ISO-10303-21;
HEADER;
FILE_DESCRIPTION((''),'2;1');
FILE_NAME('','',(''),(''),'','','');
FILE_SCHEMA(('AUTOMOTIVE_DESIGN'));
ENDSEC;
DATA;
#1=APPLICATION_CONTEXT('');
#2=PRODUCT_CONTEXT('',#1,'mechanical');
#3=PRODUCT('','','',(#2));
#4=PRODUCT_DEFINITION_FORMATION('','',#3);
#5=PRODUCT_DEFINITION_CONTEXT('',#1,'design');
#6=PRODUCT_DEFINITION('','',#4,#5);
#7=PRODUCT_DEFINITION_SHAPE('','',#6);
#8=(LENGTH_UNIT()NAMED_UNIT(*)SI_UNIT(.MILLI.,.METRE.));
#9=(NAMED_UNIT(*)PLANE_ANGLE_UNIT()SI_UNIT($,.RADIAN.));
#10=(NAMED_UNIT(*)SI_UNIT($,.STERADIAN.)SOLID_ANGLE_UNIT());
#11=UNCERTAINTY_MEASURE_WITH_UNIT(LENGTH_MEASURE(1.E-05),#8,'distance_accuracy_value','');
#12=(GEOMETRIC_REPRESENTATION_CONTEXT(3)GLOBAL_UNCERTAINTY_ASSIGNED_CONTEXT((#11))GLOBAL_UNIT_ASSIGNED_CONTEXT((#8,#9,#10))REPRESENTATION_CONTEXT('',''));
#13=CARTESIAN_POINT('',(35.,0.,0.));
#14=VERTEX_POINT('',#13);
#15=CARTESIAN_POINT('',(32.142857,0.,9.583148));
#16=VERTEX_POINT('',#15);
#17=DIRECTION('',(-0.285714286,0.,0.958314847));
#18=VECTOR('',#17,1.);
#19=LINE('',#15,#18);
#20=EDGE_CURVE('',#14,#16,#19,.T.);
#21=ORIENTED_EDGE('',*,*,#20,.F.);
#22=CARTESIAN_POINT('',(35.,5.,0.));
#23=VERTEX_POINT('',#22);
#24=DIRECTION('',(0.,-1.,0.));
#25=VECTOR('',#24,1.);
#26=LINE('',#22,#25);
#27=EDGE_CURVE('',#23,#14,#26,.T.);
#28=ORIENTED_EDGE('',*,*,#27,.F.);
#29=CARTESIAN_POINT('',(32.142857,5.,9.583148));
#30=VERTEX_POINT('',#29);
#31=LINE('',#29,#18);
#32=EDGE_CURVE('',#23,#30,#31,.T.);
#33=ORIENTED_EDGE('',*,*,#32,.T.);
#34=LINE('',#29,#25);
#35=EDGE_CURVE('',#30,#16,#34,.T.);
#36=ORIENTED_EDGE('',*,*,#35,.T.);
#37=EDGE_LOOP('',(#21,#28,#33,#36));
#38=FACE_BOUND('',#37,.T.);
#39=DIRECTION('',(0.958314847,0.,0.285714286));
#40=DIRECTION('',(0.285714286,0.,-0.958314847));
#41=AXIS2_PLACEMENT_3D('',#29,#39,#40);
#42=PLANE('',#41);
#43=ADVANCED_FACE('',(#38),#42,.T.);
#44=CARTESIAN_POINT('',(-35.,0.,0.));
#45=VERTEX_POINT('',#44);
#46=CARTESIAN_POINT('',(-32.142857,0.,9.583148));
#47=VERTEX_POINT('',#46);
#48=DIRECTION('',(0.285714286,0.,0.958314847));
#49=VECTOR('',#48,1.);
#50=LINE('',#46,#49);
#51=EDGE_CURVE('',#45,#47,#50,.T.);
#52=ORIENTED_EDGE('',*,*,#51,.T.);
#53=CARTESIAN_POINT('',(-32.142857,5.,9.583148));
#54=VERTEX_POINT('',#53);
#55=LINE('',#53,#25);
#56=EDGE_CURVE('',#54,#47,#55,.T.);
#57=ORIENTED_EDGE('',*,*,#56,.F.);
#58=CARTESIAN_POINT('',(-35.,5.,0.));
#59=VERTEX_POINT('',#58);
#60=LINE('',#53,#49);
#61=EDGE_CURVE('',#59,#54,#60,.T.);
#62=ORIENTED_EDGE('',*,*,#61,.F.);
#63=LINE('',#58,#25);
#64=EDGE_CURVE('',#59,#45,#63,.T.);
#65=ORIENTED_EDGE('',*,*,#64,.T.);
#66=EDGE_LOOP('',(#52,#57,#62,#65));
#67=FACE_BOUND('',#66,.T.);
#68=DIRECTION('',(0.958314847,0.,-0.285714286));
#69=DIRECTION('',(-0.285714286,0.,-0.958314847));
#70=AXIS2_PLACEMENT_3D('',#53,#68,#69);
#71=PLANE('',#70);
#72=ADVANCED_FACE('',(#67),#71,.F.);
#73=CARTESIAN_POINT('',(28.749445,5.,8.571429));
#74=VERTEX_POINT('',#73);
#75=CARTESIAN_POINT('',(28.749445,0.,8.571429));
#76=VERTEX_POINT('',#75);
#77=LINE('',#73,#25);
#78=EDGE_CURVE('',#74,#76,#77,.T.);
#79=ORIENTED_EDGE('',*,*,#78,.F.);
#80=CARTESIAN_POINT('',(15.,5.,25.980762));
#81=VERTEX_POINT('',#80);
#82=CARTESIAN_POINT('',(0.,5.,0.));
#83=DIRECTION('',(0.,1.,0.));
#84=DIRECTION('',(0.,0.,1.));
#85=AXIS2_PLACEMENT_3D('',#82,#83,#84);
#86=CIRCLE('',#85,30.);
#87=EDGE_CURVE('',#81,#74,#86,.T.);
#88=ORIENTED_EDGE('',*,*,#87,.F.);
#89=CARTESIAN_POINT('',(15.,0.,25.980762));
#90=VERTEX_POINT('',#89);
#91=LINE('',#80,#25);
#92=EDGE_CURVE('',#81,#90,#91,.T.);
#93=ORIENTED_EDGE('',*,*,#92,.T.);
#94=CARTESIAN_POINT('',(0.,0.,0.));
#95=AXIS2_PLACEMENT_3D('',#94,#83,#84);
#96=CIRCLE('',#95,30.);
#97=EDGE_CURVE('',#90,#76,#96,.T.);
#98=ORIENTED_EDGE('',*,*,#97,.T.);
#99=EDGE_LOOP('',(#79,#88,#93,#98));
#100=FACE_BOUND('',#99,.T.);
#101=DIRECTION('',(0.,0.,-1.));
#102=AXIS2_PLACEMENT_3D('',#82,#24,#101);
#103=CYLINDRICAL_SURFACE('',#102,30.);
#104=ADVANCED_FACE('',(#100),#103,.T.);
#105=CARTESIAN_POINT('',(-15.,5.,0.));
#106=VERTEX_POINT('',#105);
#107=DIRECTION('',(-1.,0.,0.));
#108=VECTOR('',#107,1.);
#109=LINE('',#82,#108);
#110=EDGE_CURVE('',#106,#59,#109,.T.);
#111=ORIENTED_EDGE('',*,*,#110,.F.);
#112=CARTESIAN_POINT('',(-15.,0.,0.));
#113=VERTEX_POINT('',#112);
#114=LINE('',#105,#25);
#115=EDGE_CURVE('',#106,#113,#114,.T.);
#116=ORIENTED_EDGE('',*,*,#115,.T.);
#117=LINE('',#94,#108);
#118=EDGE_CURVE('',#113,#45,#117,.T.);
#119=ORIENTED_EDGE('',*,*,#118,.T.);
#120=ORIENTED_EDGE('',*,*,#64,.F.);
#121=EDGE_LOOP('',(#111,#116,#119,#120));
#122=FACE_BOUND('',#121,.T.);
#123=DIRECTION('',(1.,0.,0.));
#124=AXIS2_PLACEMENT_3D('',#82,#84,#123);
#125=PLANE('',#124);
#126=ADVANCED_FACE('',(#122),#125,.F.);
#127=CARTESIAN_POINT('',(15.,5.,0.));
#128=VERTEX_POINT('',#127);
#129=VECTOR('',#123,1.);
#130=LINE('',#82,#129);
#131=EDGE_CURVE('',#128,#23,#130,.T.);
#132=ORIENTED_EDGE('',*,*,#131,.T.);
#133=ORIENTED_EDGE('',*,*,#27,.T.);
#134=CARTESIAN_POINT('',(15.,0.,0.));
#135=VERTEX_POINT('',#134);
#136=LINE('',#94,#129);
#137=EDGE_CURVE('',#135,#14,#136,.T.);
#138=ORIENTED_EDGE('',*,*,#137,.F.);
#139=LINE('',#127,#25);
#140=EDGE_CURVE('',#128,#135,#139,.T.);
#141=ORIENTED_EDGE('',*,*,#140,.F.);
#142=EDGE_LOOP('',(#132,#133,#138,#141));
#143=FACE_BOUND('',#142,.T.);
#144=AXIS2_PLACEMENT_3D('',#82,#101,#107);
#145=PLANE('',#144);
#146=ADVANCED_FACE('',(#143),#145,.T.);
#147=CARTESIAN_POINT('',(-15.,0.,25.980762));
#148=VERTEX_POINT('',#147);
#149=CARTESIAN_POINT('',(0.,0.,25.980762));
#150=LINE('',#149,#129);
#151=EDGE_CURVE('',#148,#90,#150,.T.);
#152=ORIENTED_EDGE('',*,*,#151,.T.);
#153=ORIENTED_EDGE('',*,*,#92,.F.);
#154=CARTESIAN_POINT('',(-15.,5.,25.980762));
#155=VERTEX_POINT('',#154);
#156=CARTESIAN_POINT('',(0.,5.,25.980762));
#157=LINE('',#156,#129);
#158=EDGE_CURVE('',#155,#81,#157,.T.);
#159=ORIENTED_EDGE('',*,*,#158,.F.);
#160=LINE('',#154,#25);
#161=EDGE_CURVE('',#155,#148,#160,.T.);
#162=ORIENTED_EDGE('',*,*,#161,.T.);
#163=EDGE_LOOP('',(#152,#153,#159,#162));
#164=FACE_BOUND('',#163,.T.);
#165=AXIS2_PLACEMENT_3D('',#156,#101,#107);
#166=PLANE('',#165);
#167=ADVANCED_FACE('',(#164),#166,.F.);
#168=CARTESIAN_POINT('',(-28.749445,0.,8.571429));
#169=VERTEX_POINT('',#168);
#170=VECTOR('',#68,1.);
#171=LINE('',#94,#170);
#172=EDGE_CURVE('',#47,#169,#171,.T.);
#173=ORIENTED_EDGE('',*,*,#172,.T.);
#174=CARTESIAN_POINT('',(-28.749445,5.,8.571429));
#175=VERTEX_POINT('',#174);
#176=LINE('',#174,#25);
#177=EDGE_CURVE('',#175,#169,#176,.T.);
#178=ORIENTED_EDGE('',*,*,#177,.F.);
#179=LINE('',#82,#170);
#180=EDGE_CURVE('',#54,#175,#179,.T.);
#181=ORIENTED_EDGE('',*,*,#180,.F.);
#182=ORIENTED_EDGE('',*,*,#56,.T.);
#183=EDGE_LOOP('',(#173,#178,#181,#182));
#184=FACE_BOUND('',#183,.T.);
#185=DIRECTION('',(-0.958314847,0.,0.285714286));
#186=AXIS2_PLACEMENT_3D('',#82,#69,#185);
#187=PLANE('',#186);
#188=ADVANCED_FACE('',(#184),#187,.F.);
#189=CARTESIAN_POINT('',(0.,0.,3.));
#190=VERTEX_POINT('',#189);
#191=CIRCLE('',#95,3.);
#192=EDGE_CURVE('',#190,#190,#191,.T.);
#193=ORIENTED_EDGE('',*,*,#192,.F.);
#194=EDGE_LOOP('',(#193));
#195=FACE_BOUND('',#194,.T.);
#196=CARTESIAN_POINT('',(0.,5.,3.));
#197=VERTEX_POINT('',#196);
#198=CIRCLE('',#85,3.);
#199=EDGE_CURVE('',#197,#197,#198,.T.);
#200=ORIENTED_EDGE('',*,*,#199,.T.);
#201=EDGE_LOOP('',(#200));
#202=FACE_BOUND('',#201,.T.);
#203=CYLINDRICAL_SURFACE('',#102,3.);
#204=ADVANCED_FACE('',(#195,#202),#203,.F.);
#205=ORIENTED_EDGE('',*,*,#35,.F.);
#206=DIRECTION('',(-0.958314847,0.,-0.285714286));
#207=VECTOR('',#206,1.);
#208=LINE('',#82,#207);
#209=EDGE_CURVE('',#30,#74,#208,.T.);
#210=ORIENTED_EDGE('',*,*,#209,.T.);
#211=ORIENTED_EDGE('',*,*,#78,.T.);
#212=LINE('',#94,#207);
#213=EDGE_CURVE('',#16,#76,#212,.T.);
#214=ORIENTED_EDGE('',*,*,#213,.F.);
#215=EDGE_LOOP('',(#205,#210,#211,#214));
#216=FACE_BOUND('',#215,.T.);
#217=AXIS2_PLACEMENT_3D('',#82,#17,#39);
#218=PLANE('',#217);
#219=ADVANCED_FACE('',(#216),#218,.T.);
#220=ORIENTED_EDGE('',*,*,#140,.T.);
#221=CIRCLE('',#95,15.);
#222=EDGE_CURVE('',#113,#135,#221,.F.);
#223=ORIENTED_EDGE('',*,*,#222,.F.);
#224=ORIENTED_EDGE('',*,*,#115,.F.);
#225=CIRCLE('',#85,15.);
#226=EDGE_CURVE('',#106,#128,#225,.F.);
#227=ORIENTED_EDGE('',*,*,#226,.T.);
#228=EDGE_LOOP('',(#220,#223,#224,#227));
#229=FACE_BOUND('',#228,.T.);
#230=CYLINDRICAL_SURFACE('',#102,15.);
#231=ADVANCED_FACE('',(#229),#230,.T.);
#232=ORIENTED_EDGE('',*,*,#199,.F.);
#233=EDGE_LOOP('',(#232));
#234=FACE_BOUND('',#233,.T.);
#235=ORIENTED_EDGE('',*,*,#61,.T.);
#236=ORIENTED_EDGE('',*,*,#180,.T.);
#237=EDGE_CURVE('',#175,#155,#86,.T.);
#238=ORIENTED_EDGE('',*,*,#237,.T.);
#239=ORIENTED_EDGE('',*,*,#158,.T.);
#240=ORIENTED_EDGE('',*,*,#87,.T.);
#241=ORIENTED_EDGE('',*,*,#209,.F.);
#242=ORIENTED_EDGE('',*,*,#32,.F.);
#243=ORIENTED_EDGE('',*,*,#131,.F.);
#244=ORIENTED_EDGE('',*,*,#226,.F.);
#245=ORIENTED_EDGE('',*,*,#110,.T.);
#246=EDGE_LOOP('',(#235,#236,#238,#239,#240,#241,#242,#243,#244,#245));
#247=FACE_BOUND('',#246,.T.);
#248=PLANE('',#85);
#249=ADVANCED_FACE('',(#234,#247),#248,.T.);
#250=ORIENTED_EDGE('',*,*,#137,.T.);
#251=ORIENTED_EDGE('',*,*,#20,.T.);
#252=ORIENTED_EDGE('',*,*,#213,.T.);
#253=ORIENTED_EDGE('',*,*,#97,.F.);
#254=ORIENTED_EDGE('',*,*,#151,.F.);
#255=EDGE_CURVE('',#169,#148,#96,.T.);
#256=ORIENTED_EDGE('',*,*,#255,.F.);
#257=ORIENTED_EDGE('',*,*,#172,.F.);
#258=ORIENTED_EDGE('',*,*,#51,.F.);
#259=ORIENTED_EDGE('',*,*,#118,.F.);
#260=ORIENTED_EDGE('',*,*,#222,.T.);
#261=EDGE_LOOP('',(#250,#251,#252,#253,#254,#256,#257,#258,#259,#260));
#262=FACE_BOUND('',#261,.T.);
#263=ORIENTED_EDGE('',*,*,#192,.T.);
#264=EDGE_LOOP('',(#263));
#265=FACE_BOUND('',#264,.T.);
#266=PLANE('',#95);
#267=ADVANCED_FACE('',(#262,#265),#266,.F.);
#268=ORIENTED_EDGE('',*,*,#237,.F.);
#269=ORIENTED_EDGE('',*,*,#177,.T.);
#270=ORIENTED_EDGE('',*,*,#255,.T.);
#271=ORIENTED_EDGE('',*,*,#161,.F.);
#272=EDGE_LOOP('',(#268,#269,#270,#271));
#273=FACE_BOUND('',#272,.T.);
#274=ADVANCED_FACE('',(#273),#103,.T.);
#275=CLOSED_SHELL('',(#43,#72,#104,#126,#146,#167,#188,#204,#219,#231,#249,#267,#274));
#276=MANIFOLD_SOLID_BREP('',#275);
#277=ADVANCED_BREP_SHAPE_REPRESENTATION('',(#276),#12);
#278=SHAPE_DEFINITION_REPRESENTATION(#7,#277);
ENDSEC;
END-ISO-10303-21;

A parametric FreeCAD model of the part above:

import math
import FreeCAD as App
import Part
import Sketcher

V = App.Vector
Q = App.Units.Quantity

doc = App.newDocument("Part")
body = doc.addObject("PartDesign::Body", "Body")

sketch1 = body.newObject("Sketcher::SketchObject", "Sketch")
sketch1.AttachmentSupport = (doc.getObject("XZ_Plane"), [""])
sketch1.MapMode = "FlatFace"
sketch1.addGeometry(Part.ArcOfCircle(Part.Circle(V(0, 0, 0), V(0, 0, 1), 15), math.radians(180), math.radians(360)), False)
sketch1.addGeometry(Part.LineSegment(V(-15, 0, 0), V(-35, 0, 0)), False)
sketch1.addGeometry(Part.LineSegment(V(-35, 0, 0), V(-32.1, 9.6, 0)), False)
sketch1.addGeometry(Part.LineSegment(V(-32.1, 9.6, 0), V(-28.7, 8.6, 0)), False)
sketch1.addGeometry(Part.ArcOfCircle(Part.Circle(V(0, 0, 0), V(0, 0, 1), 30), math.radians(120), math.radians(163)), False)
sketch1.addGeometry(Part.LineSegment(V(-15, 26, 0), V(15, 26, 0)), False)
sketch1.addGeometry(Part.ArcOfCircle(Part.Circle(V(0, 0, 0), V(0, 0, 1), 30), math.radians(17), math.radians(60)), False)
sketch1.addGeometry(Part.LineSegment(V(28.7, 8.6, 0), V(32.1, 9.6, 0)), False)
sketch1.addGeometry(Part.LineSegment(V(32.1, 9.6, 0), V(35, 0, 0)), False)
sketch1.addGeometry(Part.LineSegment(V(35, 0, 0), V(15, 0, 0)), False)
sketch1.addGeometry(Part.Circle(V(0, 0, 0), V(0, 0, 1), 3), False)
sketch1.addConstraint(Sketcher.Constraint("Coincident", 0, 1, 1, 1))
sketch1.addConstraint(Sketcher.Constraint("Coincident", 1, 2, 2, 1))
sketch1.addConstraint(Sketcher.Constraint("Coincident", 2, 2, 3, 1))
sketch1.addConstraint(Sketcher.Constraint("Coincident", 3, 2, 4, 2))
sketch1.addConstraint(Sketcher.Constraint("Coincident", 4, 1, 5, 1))
sketch1.addConstraint(Sketcher.Constraint("Coincident", 5, 2, 6, 2))
sketch1.addConstraint(Sketcher.Constraint("Coincident", 6, 1, 7, 1))
sketch1.addConstraint(Sketcher.Constraint("Coincident", 7, 2, 8, 1))
sketch1.addConstraint(Sketcher.Constraint("Coincident", 8, 2, 9, 1))
sketch1.addConstraint(Sketcher.Constraint("Coincident", 9, 2, 0, 2))
sketch1.addConstraint(Sketcher.Constraint("Horizontal", 1))
sketch1.addConstraint(Sketcher.Constraint("Horizontal", 5))
sketch1.addConstraint(Sketcher.Constraint("Horizontal", 9))
sketch1.addConstraint(Sketcher.Constraint("Coincident", 0, 3, -1, 1))
sketch1.addConstraint(Sketcher.Constraint("Coincident", 4, 3, -1, 1))
sketch1.addConstraint(Sketcher.Constraint("Coincident", 6, 3, -1, 1))
sketch1.addConstraint(Sketcher.Constraint("Coincident", 10, 3, -1, 1))
sketch1.addConstraint(Sketcher.Constraint("Equal", 4, 6))
sketch1.addConstraint(Sketcher.Constraint("Symmetric", 1, 2, 8, 2, -1, 1))
sketch1.addConstraint(Sketcher.Constraint("Symmetric", 2, 2, 7, 2, -2))
sketch1.addConstraint(Sketcher.Constraint("PointOnObject", 0, 1, -1))
sketch1.addConstraint(Sketcher.Constraint("Perpendicular", 2, 3))
sketch1.addConstraint(Sketcher.Constraint("Perpendicular", 7, 8))
sketch1.addConstraint(Sketcher.Constraint("Vertical", 0, 1, 4, 1))
sketch1.addConstraint(Sketcher.Constraint("Diameter", 10, Q("6 mm")))
sketch1.addConstraint(Sketcher.Constraint("Radius", 0, Q("15 mm")))
sketch1.addConstraint(Sketcher.Constraint("Radius", 4, Q("30 mm")))
sketch1.addConstraint(Sketcher.Constraint("DistanceX", 1, 2, 1, 1, Q("20 mm")))
sketch1.addConstraint(Sketcher.Constraint("Distance", 2, Q("10 mm")))
sketch1.addConstraint(Sketcher.Constraint("Distance", 3, Q("3.54102 mm")))
pad1 = body.newObject("PartDesign::Pad", "Pad")
pad1.Profile = sketch1
pad1.Length = 5
pad1.Reversed = True

doc.recompute()
